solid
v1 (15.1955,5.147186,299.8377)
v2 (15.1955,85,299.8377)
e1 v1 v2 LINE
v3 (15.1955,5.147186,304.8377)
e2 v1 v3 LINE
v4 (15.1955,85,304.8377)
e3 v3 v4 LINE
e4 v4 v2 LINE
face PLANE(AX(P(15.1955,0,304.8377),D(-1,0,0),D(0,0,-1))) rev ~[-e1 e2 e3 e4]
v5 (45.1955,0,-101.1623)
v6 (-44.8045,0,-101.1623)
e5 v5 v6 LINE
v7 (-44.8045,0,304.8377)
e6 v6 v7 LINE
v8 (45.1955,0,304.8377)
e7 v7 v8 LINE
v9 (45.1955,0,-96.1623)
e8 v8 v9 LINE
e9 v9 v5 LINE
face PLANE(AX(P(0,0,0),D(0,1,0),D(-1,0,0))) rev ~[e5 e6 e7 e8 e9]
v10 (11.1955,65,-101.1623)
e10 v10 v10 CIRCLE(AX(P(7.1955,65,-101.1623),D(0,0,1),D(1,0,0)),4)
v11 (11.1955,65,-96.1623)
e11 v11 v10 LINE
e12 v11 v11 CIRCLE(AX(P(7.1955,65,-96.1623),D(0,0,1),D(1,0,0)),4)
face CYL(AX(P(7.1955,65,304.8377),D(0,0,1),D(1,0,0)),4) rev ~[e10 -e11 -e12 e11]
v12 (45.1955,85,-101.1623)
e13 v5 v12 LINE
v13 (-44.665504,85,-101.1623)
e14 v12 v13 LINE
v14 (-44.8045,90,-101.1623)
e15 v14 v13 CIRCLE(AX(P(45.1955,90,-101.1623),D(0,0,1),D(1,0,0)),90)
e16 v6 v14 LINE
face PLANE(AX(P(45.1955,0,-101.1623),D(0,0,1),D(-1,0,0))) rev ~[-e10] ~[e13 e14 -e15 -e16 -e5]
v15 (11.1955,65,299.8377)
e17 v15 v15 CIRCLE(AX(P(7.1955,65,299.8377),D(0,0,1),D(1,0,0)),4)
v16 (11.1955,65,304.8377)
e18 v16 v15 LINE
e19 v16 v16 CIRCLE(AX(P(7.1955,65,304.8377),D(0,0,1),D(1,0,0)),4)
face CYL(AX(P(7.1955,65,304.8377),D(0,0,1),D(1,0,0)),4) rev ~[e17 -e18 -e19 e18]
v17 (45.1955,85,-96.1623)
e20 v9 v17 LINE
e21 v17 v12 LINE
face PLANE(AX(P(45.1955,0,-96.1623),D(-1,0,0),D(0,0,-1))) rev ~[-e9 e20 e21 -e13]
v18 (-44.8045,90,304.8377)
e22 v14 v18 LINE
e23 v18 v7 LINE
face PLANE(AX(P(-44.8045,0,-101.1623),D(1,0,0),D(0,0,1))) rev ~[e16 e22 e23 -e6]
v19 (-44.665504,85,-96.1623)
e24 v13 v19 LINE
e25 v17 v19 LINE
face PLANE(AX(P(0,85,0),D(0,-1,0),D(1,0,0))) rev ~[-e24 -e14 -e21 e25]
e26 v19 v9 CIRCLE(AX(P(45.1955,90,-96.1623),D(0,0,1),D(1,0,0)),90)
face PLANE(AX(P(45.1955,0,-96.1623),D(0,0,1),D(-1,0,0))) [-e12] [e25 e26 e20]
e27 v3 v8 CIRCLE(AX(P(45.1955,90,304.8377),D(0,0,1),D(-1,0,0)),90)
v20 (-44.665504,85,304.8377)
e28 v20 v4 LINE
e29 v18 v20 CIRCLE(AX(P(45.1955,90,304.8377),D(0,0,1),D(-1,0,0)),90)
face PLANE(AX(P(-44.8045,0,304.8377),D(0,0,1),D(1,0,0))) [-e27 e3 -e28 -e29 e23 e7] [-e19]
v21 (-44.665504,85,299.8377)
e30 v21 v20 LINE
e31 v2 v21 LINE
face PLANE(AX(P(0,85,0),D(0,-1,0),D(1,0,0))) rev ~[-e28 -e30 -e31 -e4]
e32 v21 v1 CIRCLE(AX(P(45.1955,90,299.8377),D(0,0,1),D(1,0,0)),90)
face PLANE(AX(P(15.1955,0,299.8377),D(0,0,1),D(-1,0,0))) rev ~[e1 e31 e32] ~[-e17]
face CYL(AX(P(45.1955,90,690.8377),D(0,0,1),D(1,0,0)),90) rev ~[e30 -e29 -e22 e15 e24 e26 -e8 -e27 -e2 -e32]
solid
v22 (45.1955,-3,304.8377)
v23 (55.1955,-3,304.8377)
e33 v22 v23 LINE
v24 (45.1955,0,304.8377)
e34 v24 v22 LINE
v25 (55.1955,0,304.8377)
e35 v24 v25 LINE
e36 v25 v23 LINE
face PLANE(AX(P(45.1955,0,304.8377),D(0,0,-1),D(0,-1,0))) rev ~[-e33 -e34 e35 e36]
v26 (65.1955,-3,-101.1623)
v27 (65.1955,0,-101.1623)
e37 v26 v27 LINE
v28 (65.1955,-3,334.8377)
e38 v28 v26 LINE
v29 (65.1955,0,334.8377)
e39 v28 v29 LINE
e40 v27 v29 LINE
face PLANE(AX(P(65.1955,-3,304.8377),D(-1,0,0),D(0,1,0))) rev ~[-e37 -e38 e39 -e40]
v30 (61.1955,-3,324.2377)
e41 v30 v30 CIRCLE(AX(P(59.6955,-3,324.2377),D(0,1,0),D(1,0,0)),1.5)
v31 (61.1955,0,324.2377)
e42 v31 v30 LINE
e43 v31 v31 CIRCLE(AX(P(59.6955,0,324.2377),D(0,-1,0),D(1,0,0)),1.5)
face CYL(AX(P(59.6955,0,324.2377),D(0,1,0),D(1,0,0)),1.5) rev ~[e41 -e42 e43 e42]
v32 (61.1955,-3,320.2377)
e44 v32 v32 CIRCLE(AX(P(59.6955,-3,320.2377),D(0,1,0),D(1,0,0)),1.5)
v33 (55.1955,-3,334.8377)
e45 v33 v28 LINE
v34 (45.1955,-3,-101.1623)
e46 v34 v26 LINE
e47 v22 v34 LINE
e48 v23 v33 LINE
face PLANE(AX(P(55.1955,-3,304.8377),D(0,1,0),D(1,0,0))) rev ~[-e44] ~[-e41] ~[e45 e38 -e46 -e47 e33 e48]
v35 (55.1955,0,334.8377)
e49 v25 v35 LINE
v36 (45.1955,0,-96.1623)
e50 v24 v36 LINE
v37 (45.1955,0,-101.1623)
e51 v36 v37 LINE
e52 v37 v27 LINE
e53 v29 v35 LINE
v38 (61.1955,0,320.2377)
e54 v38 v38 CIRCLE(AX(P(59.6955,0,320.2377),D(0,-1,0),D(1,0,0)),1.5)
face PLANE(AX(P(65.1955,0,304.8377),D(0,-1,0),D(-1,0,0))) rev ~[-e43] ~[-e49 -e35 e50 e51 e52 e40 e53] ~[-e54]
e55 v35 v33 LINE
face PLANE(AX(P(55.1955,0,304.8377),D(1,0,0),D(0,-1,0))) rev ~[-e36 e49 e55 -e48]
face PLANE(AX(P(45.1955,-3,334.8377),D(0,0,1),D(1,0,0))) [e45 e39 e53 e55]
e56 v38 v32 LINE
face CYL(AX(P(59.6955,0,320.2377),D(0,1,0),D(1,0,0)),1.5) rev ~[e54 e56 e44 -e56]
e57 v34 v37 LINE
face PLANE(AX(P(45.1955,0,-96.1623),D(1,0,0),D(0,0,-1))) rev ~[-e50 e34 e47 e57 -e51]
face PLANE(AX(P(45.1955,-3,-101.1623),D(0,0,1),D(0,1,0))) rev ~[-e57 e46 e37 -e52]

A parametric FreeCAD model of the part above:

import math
import FreeCAD as App
import Part
import Sketcher
from FreeCAD import Vector
Q = App.Units.Quantity


def add_polygon(sketch, points):
    """Adds a closed chain of lines whose ends are joined by coincident constraints."""
    first, n = sketch.GeometryCount, len(points)
    for a, b in zip(points, points[1:] + points[:1]):
        sketch.addGeometry(Part.LineSegment(App.Vector(*a, 0), App.Vector(*b, 0)), False)
    for i in range(n):
        sketch.addConstraint(Sketcher.Constraint("Coincident", first + i, 2, first + (i + 1) % n, 1))

doc = App.newDocument("Part")
params = doc.addObject("Spreadsheet::Sheet", "Params")
for row, (alias, value) in enumerate([
    ("sketch1_width", "90 mm"),
    ("sketch1_height", "792 mm"),
    ("pad1_length", "90 mm"),
    ("sketch2_diameter", "180 mm"),
    ("sketch3_radius", "90 mm"),
    ("pocket2_length", "386 mm"),
    ("sketch4_height", "5 mm"),
    ("sketch4_width", "90 mm"),
    ("pad2_length", "85 mm"),
    ("sketch5_width", "60 mm"),
    ("sketch5_height", "5 mm"),
    ("pad3_length", "85 mm"),
    ("sketch6_diameter", "8 mm"),
    ("pocket3_length", "1000 mm"),
    ("sketch7_width", "3 mm"),
    ("sketch7_height", "406 mm"),
    ("pad4_length", "20 mm"),
    ("sketch8_width", "10 mm"),
    ("sketch8_height", "3 mm"),
    ("pad5_length", "30 mm"),
    ("sketch9_diameter", "3 mm"),
    ("pocket4_length", "30 mm"),
], start=1):
    params.set(f"A{row}", alias)
    params.set(f"B{row}", "=" + value)
    params.setAlias(f"B{row}", alias)

body = doc.addObject("PartDesign::Body", "Body")
body.AllowCompound = True

# Sketch on XZ plane
sketch1 = doc.addObject("Sketcher::SketchObject", "Sketch")
body.addObject(sketch1)
sketch1.AttachmentSupport = (doc.XZ_Plane, [""])
sketch1.MapMode = "FlatFace"
add_polygon(sketch1, [(-45, -101), (-45, 691), (45, 691), (45, -101)])  # lines 0-3
sketch1.addConstraint([
    Sketcher.Constraint("Vertical", 0),
    Sketcher.Constraint("Horizontal", 1),
    Sketcher.Constraint("Vertical", 2),
    Sketcher.Constraint("Horizontal", 3),
    Sketcher.Constraint("DistanceX", 1, 1, 1, 2, Q("90 mm")),
    Sketcher.Constraint("DistanceY", 0, 1, 0, 2, Q("792 mm")),
    Sketcher.Constraint("DistanceX", 0, 2, -1, 1, Q("44.8045 mm")),
    Sketcher.Constraint("DistanceY", -1, 1, 0, 2, Q("690.8377 mm")),
])
sketch1.setExpression("Constraints[8]", "Params.sketch1_width")
sketch1.setExpression("Constraints[9]", "Params.sketch1_height")
pad1 = doc.addObject("PartDesign::Pad", "Pad")
body.addObject(pad1)
pad1.Profile = sketch1
pad1.setExpression("Length", "Params.pad1_length")
pad1.Reversed = True

# Sketch on XY plane
sketch2 = doc.addObject("Sketcher::SketchObject", "Sketch001")
body.addObject(sketch2)
sketch2.AttachmentSupport = (doc.XY_Plane, [""])
sketch2.MapMode = "FlatFace"
sketch2.AttachmentOffset = App.Placement(Vector(0, 0, 690.8377), App.Rotation())
sketch2.addGeometry(Part.Circle(Vector(45, 90, 0), Vector(0, 0, 1), 90), False)
sketch2.addConstraint([
    Sketcher.Constraint("Diameter", 0, Q("180 mm")),
    Sketcher.Constraint("DistanceY", -1, 1, 0, 3, Q("90 mm")),
    Sketcher.Constraint("DistanceX", -1, 1, 0, 3, Q("45.1955 mm")),
])
sketch2.setExpression("Constraints[0]", "Params.sketch2_diameter")
pocket1 = doc.addObject("PartDesign::Pocket", "Pocket")
body.addObject(pocket1)
pocket1.Profile = sketch2
pocket1.Type = "ThroughAll"

# Sketch on XY plane
sketch3 = doc.addObject("Sketcher::SketchObject", "Sketch002")
body.addObject(sketch3)
sketch3.AttachmentSupport = (doc.XY_Plane, [""])
sketch3.MapMode = "FlatFace"
sketch3.AttachmentOffset = App.Placement(Vector(0, 0, 690.8377), App.Rotation())
sketch3.addGeometry([
    Part.LineSegment(Vector(-45, 90, 0), Vector(-45, 0, 0)),
    Part.LineSegment(Vector(-45, 0, 0), Vector(45, 0, 0)),
    Part.ArcOfCircle(Part.Circle(Vector(45, 90, 0), Vector(0, 0, 1), 90), math.radians(180), math.radians(270)),
], False)
sketch3.addConstraint([
    Sketcher.Constraint("Coincident", 0, 2, 1, 1),
    Sketcher.Constraint("Tangent", 1, 2, 2, 2),
    Sketcher.Constraint("Tangent", 2, 1, 0, 1),
    Sketcher.Constraint("Vertical", 0),
    Sketcher.Constraint("Horizontal", 1),
    Sketcher.Constraint("PointOnObject", 0, 2, -1),
    Sketcher.Constraint("Radius", 2, Q("90 mm")),
    Sketcher.Constraint("DistanceX", -1, 1, 2, 3, Q("45.1955 mm")),
])
sketch3.setExpression("Constraints[6]", "Params.sketch3_radius")
pocket2 = doc.addObject("PartDesign::Pocket", "Pocket001")
body.addObject(pocket2)
pocket2.Profile = sketch3
pocket2.setExpression("Length", "Params.pocket2_length")

# Sketch on XZ plane
sketch4 = doc.addObject("Sketcher::SketchObject", "Sketch003")
body.addObject(sketch4)
sketch4.AttachmentSupport = (doc.XZ_Plane, [""])
sketch4.MapMode = "FlatFace"
add_polygon(sketch4, [(-45, -101), (45, -101), (45, -96), (-45, -96)])  # lines 0-3
sketch4.addConstraint([
    Sketcher.Constraint("Horizontal", 0),
    Sketcher.Constraint("Vertical", 1),
    Sketcher.Constraint("Horizontal", 2),
    Sketcher.Constraint("Vertical", 3),
    Sketcher.Constraint("DistanceY", 1, 1, 1, 2, Q("5 mm")),
    Sketcher.Constraint("DistanceX", 0, 1, 0, 2, Q("90 mm")),
    Sketcher.Constraint("DistanceX", -1, 1, 0, 2, Q("45.1955 mm")),
    Sketcher.Constraint("DistanceY", 0, 2, -1, 1, Q("101.1623 mm")),
])
sketch4.setExpression("Constraints[8]", "Params.sketch4_height")
sketch4.setExpression("Constraints[9]", "Params.sketch4_width")
pad2 = doc.addObject("PartDesign::Pad", "Pad001")
body.addObject(pad2)
pad2.Profile = sketch4
pad2.setExpression("Length", "Params.pad2_length")
pad2.Reversed = True

# Sketch on XZ plane
sketch5 = doc.addObject("Sketcher::SketchObject", "Sketch004")
body.addObject(sketch5)
sketch5.AttachmentSupport = (doc.XZ_Plane, [""])
sketch5.MapMode = "FlatFace"
add_polygon(sketch5, [(-45, 305), (-45, 300), (15, 300), (15, 305)])  # lines 0-3
sketch5.addConstraint([
    Sketcher.Constraint("Vertical", 0),
    Sketcher.Constraint("Horizontal", 1),
    Sketcher.Constraint("Vertical", 2),
    Sketcher.Constraint("Horizontal", 3),
    Sketcher.Constraint("DistanceX", 1, 1, 1, 2, Q("60 mm")),
    Sketcher.Constraint("DistanceY", 0, 2, 0, 1, Q("5 mm")),
    Sketcher.Constraint("DistanceX", 0, 2, -1, 1, Q("44.8045 mm")),
    Sketcher.Constraint("DistanceY", -1, 1, 0, 2, Q("299.8377 mm")),
])
sketch5.setExpression("Constraints[8]", "Params.sketch5_width")
sketch5.setExpression("Constraints[9]", "Params.sketch5_height")
pad3 = doc.addObject("PartDesign::Pad", "Pad002")
body.addObject(pad3)
pad3.Profile = sketch5
pad3.setExpression("Length", "Params.pad3_length")
pad3.Reversed = True

# Sketch on XY plane
sketch6 = doc.addObject("Sketcher::SketchObject", "Sketch005")
body.addObject(sketch6)
sketch6.AttachmentSupport = (doc.XY_Plane, [""])
sketch6.MapMode = "FlatFace"
sketch6.AttachmentOffset = App.Placement(Vector(0, 0, 304.8377), App.Rotation())
sketch6.addGeometry(Part.Circle(Vector(7.2, 65, 0), Vector(0, 0, 1), 4), False)
sketch6.addConstraint([
    Sketcher.Constraint("Diameter", 0, Q("8 mm")),
    Sketcher.Constraint("DistanceY", -1, 1, 0, 3, Q("65 mm")),
    Sketcher.Constraint("DistanceX", -1, 1, 0, 3, Q("7.1955 mm")),
])
sketch6.setExpression("Constraints[0]", "Params.sketch6_diameter")
pocket3 = doc.addObject("PartDesign::Pocket", "Pocket002")
body.addObject(pocket3)
pocket3.Profile = sketch6
pocket3.setExpression("Length", "Params.pocket3_length")

# Sketch on YZ plane
sketch7 = doc.addObject("Sketcher::SketchObject", "Sketch006")
body.addObject(sketch7)
sketch7.AttachmentSupport = (doc.YZ_Plane, [""])
sketch7.MapMode = "FlatFace"
sketch7.AttachmentOffset = App.Placement(Vector(0, 0, 45.1955), App.Rotation())
add_polygon(sketch7, [(-3, -101.2), (0, -101.2), (0, 304.8), (-3, 304.8)])  # lines 0-3
sketch7.addConstraint([
    Sketcher.Constraint("Horizontal", 0),
    Sketcher.Constraint("Vertical", 1),
    Sketcher.Constraint("Horizontal", 2),
    Sketcher.Constraint("Vertical", 3),
    Sketcher.Constraint("PointOnObject", 0, 2, -2),
    Sketcher.Constraint("DistanceX", 0, 1, 0, 2, Q("3 mm")),
    Sketcher.Constraint("DistanceY", 1, 1, 1, 2, Q("406 mm")),
    Sketcher.Constraint("DistanceY", 0, 2, -1, 1, Q("101.1623 mm")),
])
sketch7.setExpression("Constraints[9]", "Params.sketch7_width")
sketch7.setExpression("Constraints[10]", "Params.sketch7_height")
pad4 = doc.addObject("PartDesign::Pad", "Pad003")
body.addObject(pad4)
pad4.Profile = sketch7
pad4.setExpression("Length", "Params.pad4_length")

# Sketch on XY plane
sketch8 = doc.addObject("Sketcher::SketchObject", "Sketch007")
body.addObject(sketch8)
sketch8.AttachmentSupport = (doc.XY_Plane, [""])
sketch8.MapMode = "FlatFace"
sketch8.AttachmentOffset = App.Placement(Vector(0, 0, 304.8377), App.Rotation())
add_polygon(sketch8, [(65.2, -3), (65.2, 0), (55.2, 0), (55.2, -3)])  # lines 0-3
sketch8.addConstraint([
    Sketcher.Constraint("Vertical", 0),
    Sketcher.Constraint("Horizontal", 1),
    Sketcher.Constraint("Vertical", 2),
    Sketcher.Constraint("Horizontal", 3),
    Sketcher.Constraint("PointOnObject", 0, 2, -1),
    Sketcher.Constraint("DistanceX", 1, 2, 1, 1, Q("10 mm")),
    Sketcher.Constraint("DistanceY", 0, 1, 0, 2, Q("3 mm")),
    Sketcher.Constraint("DistanceX", -1, 1, 0, 2, Q("65.1955 mm")),
])
sketch8.setExpression("Constraints[9]", "Params.sketch8_width")
sketch8.setExpression("Constraints[10]", "Params.sketch8_height")
pad5 = doc.addObject("PartDesign::Pad", "Pad004")
body.addObject(pad5)
pad5.Profile = sketch8
pad5.setExpression("Length", "Params.pad5_length")

# Sketch on XZ plane
sketch9 = doc.addObject("Sketcher::SketchObject", "Sketch008")
body.addObject(sketch9)
sketch9.AttachmentSupport = (doc.XZ_Plane, [""])
sketch9.MapMode = "FlatFace"
sketch9.addGeometry([
    Part.Circle(Vector(59.7, 324.2, 0), Vector(0, 0, 1), 1.5),
    Part.Circle(Vector(59.7, 320.2, 0), Vector(0, 0, 1), 1.5),
], False)
sketch9.addConstraint([
    Sketcher.Constraint("Equal", 0, 1),
    Sketcher.Constraint("Vertical", 0, 3, 1, 3),
    Sketcher.Constraint("Diameter", 0, Q("3 mm")),
    Sketcher.Constraint("DistanceY", 1, 3, 0, 3, Q("4 mm")),
    Sketcher.Constraint("DistanceX", -1, 1, 0, 3, Q("59.6955 mm")),
    Sketcher.Constraint("DistanceY", -1, 1, 0, 3, Q("324.2377 mm")),
])
sketch9.setExpression("Constraints[2]", "Params.sketch9_diameter")
pocket4 = doc.addObject("PartDesign::Pocket", "Pocket003")
body.addObject(pocket4)
pocket4.Profile = sketch9
pocket4.setExpression("Length", "Params.pocket4_length")
pocket4.Reversed = True

doc.recompute()
